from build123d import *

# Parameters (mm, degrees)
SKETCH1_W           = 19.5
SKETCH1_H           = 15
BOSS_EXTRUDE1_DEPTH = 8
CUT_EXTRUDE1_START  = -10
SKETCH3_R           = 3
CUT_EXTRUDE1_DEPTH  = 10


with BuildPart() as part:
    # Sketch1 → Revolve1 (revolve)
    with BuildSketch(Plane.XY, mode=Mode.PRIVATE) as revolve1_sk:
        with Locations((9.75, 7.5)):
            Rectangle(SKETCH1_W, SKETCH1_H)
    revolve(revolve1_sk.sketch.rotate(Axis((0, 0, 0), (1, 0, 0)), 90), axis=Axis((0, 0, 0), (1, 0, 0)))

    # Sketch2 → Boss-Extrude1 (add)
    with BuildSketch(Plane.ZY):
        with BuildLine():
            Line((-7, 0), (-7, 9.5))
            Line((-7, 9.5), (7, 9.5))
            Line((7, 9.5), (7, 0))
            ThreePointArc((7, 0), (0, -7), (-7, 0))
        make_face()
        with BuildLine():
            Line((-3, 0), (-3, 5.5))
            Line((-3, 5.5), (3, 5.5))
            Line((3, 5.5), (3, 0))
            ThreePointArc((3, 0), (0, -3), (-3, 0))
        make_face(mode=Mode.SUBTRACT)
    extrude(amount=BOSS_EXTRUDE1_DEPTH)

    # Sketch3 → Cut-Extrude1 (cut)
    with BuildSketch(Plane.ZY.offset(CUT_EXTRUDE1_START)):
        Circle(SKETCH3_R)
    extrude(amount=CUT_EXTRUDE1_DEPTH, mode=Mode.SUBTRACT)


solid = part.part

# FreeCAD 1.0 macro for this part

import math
import FreeCAD as App
import Part
import Sketcher

V = App.Vector


def add_polygon(sketch, points):
    """Adds a closed chain of lines whose ends are joined by coincident constraints."""
    first, n = sketch.GeometryCount, len(points)
    for a, b in zip(points, points[1:] + points[:1]):
        sketch.addGeometry(Part.LineSegment(App.Vector(*a, 0), App.Vector(*b, 0)), False)
    for i in range(n):
        sketch.addConstraint(Sketcher.Constraint("Coincident", first + i, 2, first + (i + 1) % n, 1))

doc = App.newDocument("Part")
body = doc.addObject("PartDesign::Body", "Body")

sketch1 = body.newObject("Sketcher::SketchObject", "Sketch")
sketch1.AttachmentSupport = (doc.getObject("XY_Plane"), [""])
sketch1.MapMode = "FlatFace"
add_polygon(sketch1, [(0, 15), (0, 0), (20, 0), (20, 15)])
sketch1.addConstraint(Sketcher.Constraint("Vertical", 0))
sketch1.addConstraint(Sketcher.Constraint("Horizontal", 1))
sketch1.addConstraint(Sketcher.Constraint("Vertical", 2))
sketch1.addConstraint(Sketcher.Constraint("Horizontal", 3))
sketch1.addConstraint(Sketcher.Constraint("Coincident", 0, 2, -1, 1))
sketch1.addConstraint(Sketcher.Constraint("DistanceY", 0, 2, 0, 1, 15.0))
sketch1.addConstraint(Sketcher.Constraint("DistanceX", 1, 1, 1, 2, 19.5))
revolution = body.newObject("PartDesign::Revolution", "Revolution")
revolution.Profile = sketch1
revolution.ReferenceAxis = (sketch1, ["H_Axis"])
revolution.Angle = 360

sketch2 = body.newObject("Sketcher::SketchObject", "Sketch001")
sketch2.AttachmentSupport = (doc.getObject("YZ_Plane"), [""])
sketch2.MapMode = "FlatFace"
sketch2.addGeometry(Part.LineSegment(V(9.5, -7, 0), V(0, -7, 0)), False)
sketch2.addGeometry(Part.ArcOfCircle(Part.Circle(V(0, 0, 0), V(0, 0, 1), 7), math.radians(90), math.radians(270)), False)
sketch2.addGeometry(Part.LineSegment(V(0, 7, 0), V(9.5, 7, 0)), False)
sketch2.addGeometry(Part.LineSegment(V(9.5, 7, 0), V(9.5, -7, 0)), False)
sketch2.addGeometry(Part.LineSegment(V(0, -3, 0), V(5.5, -3, 0)), False)
sketch2.addGeometry(Part.LineSegment(V(5.5, -3, 0), V(5.5, 3, 0)), False)
sketch2.addGeometry(Part.LineSegment(V(5.5, 3, 0), V(0, 3, 0)), False)
sketch2.addGeometry(Part.ArcOfCircle(Part.Circle(V(0, 0, 0), V(0, 0, 1), 3), math.radians(90), math.radians(270)), False)
sketch2.addConstraint(Sketcher.Constraint("Tangent", 0, 2, 1, 2))
sketch2.addConstraint(Sketcher.Constraint("Tangent", 1, 1, 2, 1))
sketch2.addConstraint(Sketcher.Constraint("Coincident", 2, 2, 3, 1))
sketch2.addConstraint(Sketcher.Constraint("Coincident", 3, 2, 0, 1))
sketch2.addConstraint(Sketcher.Constraint("Coincident", 4, 2, 5, 1))
sketch2.addConstraint(Sketcher.Constraint("Coincident", 5, 2, 6, 1))
sketch2.addConstraint(Sketcher.Constraint("Tangent", 6, 2, 7, 1))
sketch2.addConstraint(Sketcher.Constraint("Tangent", 7, 2, 4, 1))
sketch2.addConstraint(Sketcher.Constraint("Horizontal", 0))
sketch2.addConstraint(Sketcher.Constraint("Horizontal", 2))
sketch2.addConstraint(Sketcher.Constraint("Vertical", 3))
sketch2.addConstraint(Sketcher.Constraint("Horizontal", 4))
sketch2.addConstraint(Sketcher.Constraint("Vertical", 5))
sketch2.addConstraint(Sketcher.Constraint("Horizontal", 6))
sketch2.addConstraint(Sketcher.Constraint("Coincident", 1, 3, -1, 1))
sketch2.addConstraint(Sketcher.Constraint("Coincident", 7, 3, -1, 1))
sketch2.addConstraint(Sketcher.Constraint("Radius", 1, 7.0))
sketch2.addConstraint(Sketcher.Constraint("Radius", 7, 3.0))
sketch2.addConstraint(Sketcher.Constraint("DistanceX", 0, 2, 0, 1, 9.5))
sketch2.addConstraint(Sketcher.Constraint("DistanceX", 4, 1, 4, 2, 5.5))
pad1 = body.newObject("PartDesign::Pad", "Pad")
pad1.Profile = sketch2
pad1.Length = 8
pad1.Reversed = True

sketch3 = body.newObject("Sketcher::SketchObject", "Sketch002")
sketch3.AttachmentSupport = (doc.getObject("YZ_Plane"), [""])
sketch3.MapMode = "FlatFace"
sketch3.AttachmentOffset = App.Placement(V(0, 0, 10), App.Rotation())
sketch3.addGeometry(Part.Circle(V(0, 0, 0), V(0, 0, 1), 3), False)
sketch3.addConstraint(Sketcher.Constraint("Coincident", 0, 3, -1, 1))
sketch3.addConstraint(Sketcher.Constraint("Diameter", 0, 6.0))
pocket1 = body.newObject("PartDesign::Pocket", "Pocket")
pocket1.Profile = sketch3
pocket1.Length = 10

doc.recompute()
